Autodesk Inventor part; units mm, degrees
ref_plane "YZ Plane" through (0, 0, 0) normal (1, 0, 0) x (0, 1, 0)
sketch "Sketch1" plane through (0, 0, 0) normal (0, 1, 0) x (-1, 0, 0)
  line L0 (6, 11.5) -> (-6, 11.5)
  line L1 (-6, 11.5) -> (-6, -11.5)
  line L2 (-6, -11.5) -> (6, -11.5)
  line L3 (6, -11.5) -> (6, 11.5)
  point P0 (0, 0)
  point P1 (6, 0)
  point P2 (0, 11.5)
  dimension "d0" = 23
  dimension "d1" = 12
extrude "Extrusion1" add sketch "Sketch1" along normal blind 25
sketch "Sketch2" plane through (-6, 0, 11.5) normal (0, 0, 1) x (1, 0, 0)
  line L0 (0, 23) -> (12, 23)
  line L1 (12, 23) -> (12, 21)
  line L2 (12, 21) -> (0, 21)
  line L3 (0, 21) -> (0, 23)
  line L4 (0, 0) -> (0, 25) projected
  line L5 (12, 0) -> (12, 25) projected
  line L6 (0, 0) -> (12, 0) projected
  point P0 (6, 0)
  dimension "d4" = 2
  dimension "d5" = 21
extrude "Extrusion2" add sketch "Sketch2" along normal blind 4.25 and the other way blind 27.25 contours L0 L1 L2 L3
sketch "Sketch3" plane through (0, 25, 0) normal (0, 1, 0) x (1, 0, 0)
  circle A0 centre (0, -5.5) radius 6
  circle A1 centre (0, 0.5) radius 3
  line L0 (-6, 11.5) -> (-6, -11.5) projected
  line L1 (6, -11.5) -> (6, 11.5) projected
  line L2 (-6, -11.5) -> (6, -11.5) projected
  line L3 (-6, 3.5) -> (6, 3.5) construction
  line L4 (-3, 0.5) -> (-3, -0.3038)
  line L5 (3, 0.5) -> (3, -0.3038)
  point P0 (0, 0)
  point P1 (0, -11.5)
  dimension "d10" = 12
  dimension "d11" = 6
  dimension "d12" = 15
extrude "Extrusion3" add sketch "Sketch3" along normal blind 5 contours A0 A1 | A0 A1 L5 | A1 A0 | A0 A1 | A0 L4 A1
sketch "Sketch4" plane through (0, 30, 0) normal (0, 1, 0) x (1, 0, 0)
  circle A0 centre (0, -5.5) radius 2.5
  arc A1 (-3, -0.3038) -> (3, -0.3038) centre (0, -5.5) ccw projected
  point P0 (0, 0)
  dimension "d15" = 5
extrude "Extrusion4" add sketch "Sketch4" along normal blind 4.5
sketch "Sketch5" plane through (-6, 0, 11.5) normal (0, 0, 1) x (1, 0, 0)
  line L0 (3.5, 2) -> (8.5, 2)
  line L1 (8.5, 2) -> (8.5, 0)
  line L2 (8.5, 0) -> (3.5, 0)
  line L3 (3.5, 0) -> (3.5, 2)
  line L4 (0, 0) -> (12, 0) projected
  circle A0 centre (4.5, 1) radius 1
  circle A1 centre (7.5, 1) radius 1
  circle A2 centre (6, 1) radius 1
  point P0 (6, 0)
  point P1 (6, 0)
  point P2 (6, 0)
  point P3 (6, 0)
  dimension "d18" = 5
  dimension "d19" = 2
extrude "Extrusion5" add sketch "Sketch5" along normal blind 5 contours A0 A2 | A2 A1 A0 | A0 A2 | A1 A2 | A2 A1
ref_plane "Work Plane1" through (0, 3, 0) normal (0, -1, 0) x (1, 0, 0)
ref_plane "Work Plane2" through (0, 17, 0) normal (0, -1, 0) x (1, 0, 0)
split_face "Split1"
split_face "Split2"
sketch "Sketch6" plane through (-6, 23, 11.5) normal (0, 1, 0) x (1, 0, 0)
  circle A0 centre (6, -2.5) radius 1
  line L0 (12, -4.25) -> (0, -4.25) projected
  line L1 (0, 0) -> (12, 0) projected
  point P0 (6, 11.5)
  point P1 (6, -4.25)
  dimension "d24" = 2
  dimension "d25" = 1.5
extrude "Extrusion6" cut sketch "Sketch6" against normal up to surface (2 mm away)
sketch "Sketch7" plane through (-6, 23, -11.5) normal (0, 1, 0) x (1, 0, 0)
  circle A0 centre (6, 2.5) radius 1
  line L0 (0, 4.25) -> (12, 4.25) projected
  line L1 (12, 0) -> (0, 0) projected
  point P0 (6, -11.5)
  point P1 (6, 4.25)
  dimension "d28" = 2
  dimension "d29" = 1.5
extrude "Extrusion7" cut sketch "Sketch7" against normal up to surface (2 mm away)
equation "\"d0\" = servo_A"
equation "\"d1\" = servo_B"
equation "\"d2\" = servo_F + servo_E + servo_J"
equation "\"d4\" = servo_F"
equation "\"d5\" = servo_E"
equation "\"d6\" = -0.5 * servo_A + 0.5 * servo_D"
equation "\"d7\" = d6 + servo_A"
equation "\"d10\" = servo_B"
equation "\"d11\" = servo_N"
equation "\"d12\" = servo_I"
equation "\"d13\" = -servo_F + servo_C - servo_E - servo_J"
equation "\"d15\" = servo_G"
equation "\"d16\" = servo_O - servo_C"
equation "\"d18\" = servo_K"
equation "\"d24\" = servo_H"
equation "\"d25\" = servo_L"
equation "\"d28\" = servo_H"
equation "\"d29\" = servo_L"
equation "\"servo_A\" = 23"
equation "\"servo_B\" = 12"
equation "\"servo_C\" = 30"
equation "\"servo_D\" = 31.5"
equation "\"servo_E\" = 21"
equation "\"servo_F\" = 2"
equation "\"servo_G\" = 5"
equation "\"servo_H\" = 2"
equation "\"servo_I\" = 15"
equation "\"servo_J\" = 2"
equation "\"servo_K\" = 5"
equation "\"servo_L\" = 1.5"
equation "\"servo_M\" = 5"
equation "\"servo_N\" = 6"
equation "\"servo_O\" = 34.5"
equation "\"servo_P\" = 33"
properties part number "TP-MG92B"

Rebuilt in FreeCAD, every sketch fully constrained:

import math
import FreeCAD as App
import Part
import Sketcher


def add_polygon(sketch, points):
    """Adds a closed chain of lines whose ends are joined by coincident constraints."""
    first, n = sketch.GeometryCount, len(points)
    for a, b in zip(points, points[1:] + points[:1]):
        sketch.addGeometry(Part.LineSegment(App.Vector(*a, 0), App.Vector(*b, 0)), False)
    for i in range(n):
        sketch.addConstraint(Sketcher.Constraint("Coincident", first + i, 2, first + (i + 1) % n, 1))

doc = App.newDocument("Part")
body = doc.addObject("PartDesign::Body", "Body")

# Sketch on XZ plane
sketch1 = body.newObject("Sketcher::SketchObject", "Sketch")
sketch1.AttachmentSupport = (doc.getObject("XZ_Plane"), [""])
sketch1.MapMode = "FlatFace"
add_polygon(sketch1, [(-6, -11.5), (-6, 11.5), (6, 11.5), (6, -11.5)])  # lines 0-3
sketch1.addConstraint(Sketcher.Constraint("Vertical", 0))
sketch1.addConstraint(Sketcher.Constraint("Horizontal", 1))
sketch1.addConstraint(Sketcher.Constraint("Vertical", 2))
sketch1.addConstraint(Sketcher.Constraint("Horizontal", 3))
sketch1.addConstraint(Sketcher.Constraint("Symmetric", 0, 2, 2, 2, -1, 1))
sketch1.addConstraint(Sketcher.Constraint("DistanceX", 1, 1, 1, 2, 12.0))
sketch1.addConstraint(Sketcher.Constraint("DistanceY", 0, 1, 0, 2, 23.0))
pad1 = body.newObject("PartDesign::Pad", "Pad")
pad1.Profile = sketch1
pad1.Length = 25
pad1.Reversed = True

# Sketch on XY plane
sketch2 = body.newObject("Sketcher::SketchObject", "Sketch001")
sketch2.AttachmentSupport = (doc.getObject("XY_Plane"), [""])
sketch2.MapMode = "FlatFace"
sketch2.AttachmentOffset = App.Placement(App.Vector(0, 0, 11.5), App.Rotation())
add_polygon(sketch2, [(6, 23), (-6, 23), (-6, 21), (6, 21)])  # lines 0-3
sketch2.addConstraint(Sketcher.Constraint("Horizontal", 0))
sketch2.addConstraint(Sketcher.Constraint("Vertical", 1))
sketch2.addConstraint(Sketcher.Constraint("Horizontal", 2))
sketch2.addConstraint(Sketcher.Constraint("Vertical", 3))
sketch2.addConstraint(Sketcher.Constraint("DistanceY", 1, 2, 1, 1, 2.0))
sketch2.addConstraint(Sketcher.Constraint("DistanceY", -1, 1, 1, 2, 21.0))
sketch2.addConstraint(Sketcher.Constraint("DistanceX", 0, 2, 0, 1, 12.0))
sketch2.addConstraint(Sketcher.Constraint("DistanceX", 0, 2, -1, 1, 6.0))
pad2 = body.newObject("PartDesign::Pad", "Pad001")
pad2.Profile = sketch2
pad2.Type = "TwoLengths"
pad2.Length = 4.25
pad2.Length2 = 27.25

# Sketch on XZ plane
sketch3 = body.newObject("Sketcher::SketchObject", "Sketch002")
sketch3.AttachmentSupport = (doc.getObject("XZ_Plane"), [""])
sketch3.MapMode = "FlatFace"
sketch3.AttachmentOffset = App.Placement(App.Vector(0, 0, -25), App.Rotation())
sketch3.addGeometry(Part.LineSegment(App.Vector(3, 0.3038, 0), App.Vector(3, -0.5, 0)), False)
sketch3.addGeometry(Part.ArcOfCircle(Part.Circle(App.Vector(0, -0.5, 0), App.Vector(0, 0, 1), 3), math.radians(180), math.radians(360)), False)
sketch3.addGeometry(Part.LineSegment(App.Vector(-3, -0.5, 0), App.Vector(-3, 0.3038, 0)), False)
sketch3.addGeometry(Part.ArcOfCircle(Part.Circle(App.Vector(0, 5.5, 0), App.Vector(0, 0, 1), 6), math.radians(-60.000227), math.radians(240.000227)), False)
sketch3.addConstraint(Sketcher.Constraint("Tangent", 0, 2, 1, 2))
sketch3.addConstraint(Sketcher.Constraint("Tangent", 1, 1, 2, 1))
sketch3.addConstraint(Sketcher.Constraint("Coincident", 2, 2, 3, 2))
sketch3.addConstraint(Sketcher.Constraint("Coincident", 3, 1, 0, 1))
sketch3.addConstraint(Sketcher.Constraint("Vertical", 0))
sketch3.addConstraint(Sketcher.Constraint("Vertical", 2))
sketch3.addConstraint(Sketcher.Constraint("Symmetric", 2, 2, 3, 1, -2))
sketch3.addConstraint(Sketcher.Constraint("Radius", 1, 3.0))
sketch3.addConstraint(Sketcher.Constraint("Radius", 3, 6.0))
sketch3.addConstraint(Sketcher.Constraint("DistanceY", 1, 3, 3, 3, 6.0))
sketch3.addConstraint(Sketcher.Constraint("DistanceY", 1, 3, -1, 1, 0.5))
pad3 = body.newObject("PartDesign::Pad", "Pad002")
pad3.Profile = sketch3
pad3.Length = 5
pad3.Reversed = True

# Sketch on XZ plane
sketch4 = body.newObject("Sketcher::SketchObject", "Sketch003")
sketch4.AttachmentSupport = (doc.getObject("XZ_Plane"), [""])
sketch4.MapMode = "FlatFace"
sketch4.AttachmentOffset = App.Placement(App.Vector(0, 0, -30), App.Rotation())
sketch4.addGeometry(Part.Circle(App.Vector(0, 5.5, 0), App.Vector(0, 0, 1), 2.5), False)
sketch4.addConstraint(Sketcher.Constraint("PointOnObject", 0, 3, -2))
sketch4.addConstraint(Sketcher.Constraint("Diameter", 0, 5.0))
sketch4.addConstraint(Sketcher.Constraint("DistanceY", -1, 1, 0, 3, 5.5))
pad4 = body.newObject("PartDesign::Pad", "Pad003")
pad4.Profile = sketch4
pad4.Length = 4.5
pad4.Reversed = True

# Sketch on XY plane
sketch5 = body.newObject("Sketcher::SketchObject", "Sketch004")
sketch5.AttachmentSupport = (doc.getObject("XY_Plane"), [""])
sketch5.MapMode = "FlatFace"
sketch5.AttachmentOffset = App.Placement(App.Vector(0, 0, 11.5), App.Rotation())
sketch5.addGeometry(Part.ArcOfCircle(Part.Circle(App.Vector(-1.5, 1, 0), App.Vector(0, 0, 1), 1), math.radians(41.409622), math.radians(318.590378)), False)
sketch5.addGeometry(Part.ArcOfCircle(Part.Circle(App.Vector(0, 1, 0), App.Vector(0, 0, 1), 1), math.radians(-138.590378), math.radians(-41.409622)), False)
sketch5.addGeometry(Part.ArcOfCircle(Part.Circle(App.Vector(1.5, 1, 0), App.Vector(0, 0, 1), 1), math.radians(-138.590378), math.radians(138.590378)), False)
sketch5.addGeometry(Part.ArcOfCircle(Part.Circle(App.Vector(0, 1, 0), App.Vector(0, 0, 1), 1), math.radians(41.409622), math.radians(138.590378)), False)
sketch5.addConstraint(Sketcher.Constraint("Coincident", 0, 2, 1, 1))
sketch5.addConstraint(Sketcher.Constraint("Coincident", 1, 2, 2, 1))
sketch5.addConstraint(Sketcher.Constraint("Coincident", 2, 2, 3, 1))
sketch5.addConstraint(Sketcher.Constraint("Coincident", 3, 2, 0, 1))
sketch5.addConstraint(Sketcher.Constraint("Coincident", 3, 3, 1, 3))
sketch5.addConstraint(Sketcher.Constraint("Equal", 0, 1))
sketch5.addConstraint(Sketcher.Constraint("Equal", 1, 2))
sketch5.addConstraint(Sketcher.Constraint("Equal", 2, 3))
sketch5.addConstraint(Sketcher.Constraint("Symmetric", 0, 3, 2, 3, -2))
sketch5.addConstraint(Sketcher.Constraint("PointOnObject", 1, 3, -2))
sketch5.addConstraint(Sketcher.Constraint("Horizontal", 0, 3, 1, 3))
sketch5.addConstraint(Sketcher.Constraint("Radius", 0, 1.0))
sketch5.addConstraint(Sketcher.Constraint("DistanceY", -1, 1, 0, 3, 1.0))
sketch5.addConstraint(Sketcher.Constraint("DistanceX", 0, 3, 2, 3, 3.0))
pad5 = body.newObject("PartDesign::Pad", "Pad004")
pad5.Profile = sketch5
pad5.Length = 5

# Sketch on XZ plane
sketch6 = body.newObject("Sketcher::SketchObject", "Sketch005")
sketch6.AttachmentSupport = (doc.getObject("XZ_Plane"), [""])
sketch6.MapMode = "FlatFace"
sketch6.AttachmentOffset = App.Placement(App.Vector(0, 0, -23), App.Rotation())
sketch6.addGeometry(Part.Circle(App.Vector(0, 14, 0), App.Vector(0, 0, 1), 1), False)
sketch6.addConstraint(Sketcher.Constraint("PointOnObject", 0, 3, -2))
sketch6.addConstraint(Sketcher.Constraint("Diameter", 0, 2.0))
sketch6.addConstraint(Sketcher.Constraint("DistanceY", -1, 1, 0, 3, 14.0))
pocket1 = body.newObject("PartDesign::Pocket", "Pocket")
pocket1.Profile = sketch6
pocket1.Length = 2
pocket1.Reversed = True

# Sketch on XZ plane
sketch7 = body.newObject("Sketcher::SketchObject", "Sketch006")
sketch7.AttachmentSupport = (doc.getObject("XZ_Plane"), [""])
sketch7.MapMode = "FlatFace"
sketch7.AttachmentOffset = App.Placement(App.Vector(0, 0, -23), App.Rotation())
sketch7.addGeometry(Part.Circle(App.Vector(0, -14, 0), App.Vector(0, 0, 1), 1), False)
sketch7.addConstraint(Sketcher.Constraint("PointOnObject", 0, 3, -2))
sketch7.addConstraint(Sketcher.Constraint("Diameter", 0, 2.0))
sketch7.addConstraint(Sketcher.Constraint("DistanceY", 0, 3, -1, 1, 14.0))
pocket2 = body.newObject("PartDesign::Pocket", "Pocket001")
pocket2.Profile = sketch7
pocket2.Length = 2
pocket2.Reversed = True

doc.recompute()
